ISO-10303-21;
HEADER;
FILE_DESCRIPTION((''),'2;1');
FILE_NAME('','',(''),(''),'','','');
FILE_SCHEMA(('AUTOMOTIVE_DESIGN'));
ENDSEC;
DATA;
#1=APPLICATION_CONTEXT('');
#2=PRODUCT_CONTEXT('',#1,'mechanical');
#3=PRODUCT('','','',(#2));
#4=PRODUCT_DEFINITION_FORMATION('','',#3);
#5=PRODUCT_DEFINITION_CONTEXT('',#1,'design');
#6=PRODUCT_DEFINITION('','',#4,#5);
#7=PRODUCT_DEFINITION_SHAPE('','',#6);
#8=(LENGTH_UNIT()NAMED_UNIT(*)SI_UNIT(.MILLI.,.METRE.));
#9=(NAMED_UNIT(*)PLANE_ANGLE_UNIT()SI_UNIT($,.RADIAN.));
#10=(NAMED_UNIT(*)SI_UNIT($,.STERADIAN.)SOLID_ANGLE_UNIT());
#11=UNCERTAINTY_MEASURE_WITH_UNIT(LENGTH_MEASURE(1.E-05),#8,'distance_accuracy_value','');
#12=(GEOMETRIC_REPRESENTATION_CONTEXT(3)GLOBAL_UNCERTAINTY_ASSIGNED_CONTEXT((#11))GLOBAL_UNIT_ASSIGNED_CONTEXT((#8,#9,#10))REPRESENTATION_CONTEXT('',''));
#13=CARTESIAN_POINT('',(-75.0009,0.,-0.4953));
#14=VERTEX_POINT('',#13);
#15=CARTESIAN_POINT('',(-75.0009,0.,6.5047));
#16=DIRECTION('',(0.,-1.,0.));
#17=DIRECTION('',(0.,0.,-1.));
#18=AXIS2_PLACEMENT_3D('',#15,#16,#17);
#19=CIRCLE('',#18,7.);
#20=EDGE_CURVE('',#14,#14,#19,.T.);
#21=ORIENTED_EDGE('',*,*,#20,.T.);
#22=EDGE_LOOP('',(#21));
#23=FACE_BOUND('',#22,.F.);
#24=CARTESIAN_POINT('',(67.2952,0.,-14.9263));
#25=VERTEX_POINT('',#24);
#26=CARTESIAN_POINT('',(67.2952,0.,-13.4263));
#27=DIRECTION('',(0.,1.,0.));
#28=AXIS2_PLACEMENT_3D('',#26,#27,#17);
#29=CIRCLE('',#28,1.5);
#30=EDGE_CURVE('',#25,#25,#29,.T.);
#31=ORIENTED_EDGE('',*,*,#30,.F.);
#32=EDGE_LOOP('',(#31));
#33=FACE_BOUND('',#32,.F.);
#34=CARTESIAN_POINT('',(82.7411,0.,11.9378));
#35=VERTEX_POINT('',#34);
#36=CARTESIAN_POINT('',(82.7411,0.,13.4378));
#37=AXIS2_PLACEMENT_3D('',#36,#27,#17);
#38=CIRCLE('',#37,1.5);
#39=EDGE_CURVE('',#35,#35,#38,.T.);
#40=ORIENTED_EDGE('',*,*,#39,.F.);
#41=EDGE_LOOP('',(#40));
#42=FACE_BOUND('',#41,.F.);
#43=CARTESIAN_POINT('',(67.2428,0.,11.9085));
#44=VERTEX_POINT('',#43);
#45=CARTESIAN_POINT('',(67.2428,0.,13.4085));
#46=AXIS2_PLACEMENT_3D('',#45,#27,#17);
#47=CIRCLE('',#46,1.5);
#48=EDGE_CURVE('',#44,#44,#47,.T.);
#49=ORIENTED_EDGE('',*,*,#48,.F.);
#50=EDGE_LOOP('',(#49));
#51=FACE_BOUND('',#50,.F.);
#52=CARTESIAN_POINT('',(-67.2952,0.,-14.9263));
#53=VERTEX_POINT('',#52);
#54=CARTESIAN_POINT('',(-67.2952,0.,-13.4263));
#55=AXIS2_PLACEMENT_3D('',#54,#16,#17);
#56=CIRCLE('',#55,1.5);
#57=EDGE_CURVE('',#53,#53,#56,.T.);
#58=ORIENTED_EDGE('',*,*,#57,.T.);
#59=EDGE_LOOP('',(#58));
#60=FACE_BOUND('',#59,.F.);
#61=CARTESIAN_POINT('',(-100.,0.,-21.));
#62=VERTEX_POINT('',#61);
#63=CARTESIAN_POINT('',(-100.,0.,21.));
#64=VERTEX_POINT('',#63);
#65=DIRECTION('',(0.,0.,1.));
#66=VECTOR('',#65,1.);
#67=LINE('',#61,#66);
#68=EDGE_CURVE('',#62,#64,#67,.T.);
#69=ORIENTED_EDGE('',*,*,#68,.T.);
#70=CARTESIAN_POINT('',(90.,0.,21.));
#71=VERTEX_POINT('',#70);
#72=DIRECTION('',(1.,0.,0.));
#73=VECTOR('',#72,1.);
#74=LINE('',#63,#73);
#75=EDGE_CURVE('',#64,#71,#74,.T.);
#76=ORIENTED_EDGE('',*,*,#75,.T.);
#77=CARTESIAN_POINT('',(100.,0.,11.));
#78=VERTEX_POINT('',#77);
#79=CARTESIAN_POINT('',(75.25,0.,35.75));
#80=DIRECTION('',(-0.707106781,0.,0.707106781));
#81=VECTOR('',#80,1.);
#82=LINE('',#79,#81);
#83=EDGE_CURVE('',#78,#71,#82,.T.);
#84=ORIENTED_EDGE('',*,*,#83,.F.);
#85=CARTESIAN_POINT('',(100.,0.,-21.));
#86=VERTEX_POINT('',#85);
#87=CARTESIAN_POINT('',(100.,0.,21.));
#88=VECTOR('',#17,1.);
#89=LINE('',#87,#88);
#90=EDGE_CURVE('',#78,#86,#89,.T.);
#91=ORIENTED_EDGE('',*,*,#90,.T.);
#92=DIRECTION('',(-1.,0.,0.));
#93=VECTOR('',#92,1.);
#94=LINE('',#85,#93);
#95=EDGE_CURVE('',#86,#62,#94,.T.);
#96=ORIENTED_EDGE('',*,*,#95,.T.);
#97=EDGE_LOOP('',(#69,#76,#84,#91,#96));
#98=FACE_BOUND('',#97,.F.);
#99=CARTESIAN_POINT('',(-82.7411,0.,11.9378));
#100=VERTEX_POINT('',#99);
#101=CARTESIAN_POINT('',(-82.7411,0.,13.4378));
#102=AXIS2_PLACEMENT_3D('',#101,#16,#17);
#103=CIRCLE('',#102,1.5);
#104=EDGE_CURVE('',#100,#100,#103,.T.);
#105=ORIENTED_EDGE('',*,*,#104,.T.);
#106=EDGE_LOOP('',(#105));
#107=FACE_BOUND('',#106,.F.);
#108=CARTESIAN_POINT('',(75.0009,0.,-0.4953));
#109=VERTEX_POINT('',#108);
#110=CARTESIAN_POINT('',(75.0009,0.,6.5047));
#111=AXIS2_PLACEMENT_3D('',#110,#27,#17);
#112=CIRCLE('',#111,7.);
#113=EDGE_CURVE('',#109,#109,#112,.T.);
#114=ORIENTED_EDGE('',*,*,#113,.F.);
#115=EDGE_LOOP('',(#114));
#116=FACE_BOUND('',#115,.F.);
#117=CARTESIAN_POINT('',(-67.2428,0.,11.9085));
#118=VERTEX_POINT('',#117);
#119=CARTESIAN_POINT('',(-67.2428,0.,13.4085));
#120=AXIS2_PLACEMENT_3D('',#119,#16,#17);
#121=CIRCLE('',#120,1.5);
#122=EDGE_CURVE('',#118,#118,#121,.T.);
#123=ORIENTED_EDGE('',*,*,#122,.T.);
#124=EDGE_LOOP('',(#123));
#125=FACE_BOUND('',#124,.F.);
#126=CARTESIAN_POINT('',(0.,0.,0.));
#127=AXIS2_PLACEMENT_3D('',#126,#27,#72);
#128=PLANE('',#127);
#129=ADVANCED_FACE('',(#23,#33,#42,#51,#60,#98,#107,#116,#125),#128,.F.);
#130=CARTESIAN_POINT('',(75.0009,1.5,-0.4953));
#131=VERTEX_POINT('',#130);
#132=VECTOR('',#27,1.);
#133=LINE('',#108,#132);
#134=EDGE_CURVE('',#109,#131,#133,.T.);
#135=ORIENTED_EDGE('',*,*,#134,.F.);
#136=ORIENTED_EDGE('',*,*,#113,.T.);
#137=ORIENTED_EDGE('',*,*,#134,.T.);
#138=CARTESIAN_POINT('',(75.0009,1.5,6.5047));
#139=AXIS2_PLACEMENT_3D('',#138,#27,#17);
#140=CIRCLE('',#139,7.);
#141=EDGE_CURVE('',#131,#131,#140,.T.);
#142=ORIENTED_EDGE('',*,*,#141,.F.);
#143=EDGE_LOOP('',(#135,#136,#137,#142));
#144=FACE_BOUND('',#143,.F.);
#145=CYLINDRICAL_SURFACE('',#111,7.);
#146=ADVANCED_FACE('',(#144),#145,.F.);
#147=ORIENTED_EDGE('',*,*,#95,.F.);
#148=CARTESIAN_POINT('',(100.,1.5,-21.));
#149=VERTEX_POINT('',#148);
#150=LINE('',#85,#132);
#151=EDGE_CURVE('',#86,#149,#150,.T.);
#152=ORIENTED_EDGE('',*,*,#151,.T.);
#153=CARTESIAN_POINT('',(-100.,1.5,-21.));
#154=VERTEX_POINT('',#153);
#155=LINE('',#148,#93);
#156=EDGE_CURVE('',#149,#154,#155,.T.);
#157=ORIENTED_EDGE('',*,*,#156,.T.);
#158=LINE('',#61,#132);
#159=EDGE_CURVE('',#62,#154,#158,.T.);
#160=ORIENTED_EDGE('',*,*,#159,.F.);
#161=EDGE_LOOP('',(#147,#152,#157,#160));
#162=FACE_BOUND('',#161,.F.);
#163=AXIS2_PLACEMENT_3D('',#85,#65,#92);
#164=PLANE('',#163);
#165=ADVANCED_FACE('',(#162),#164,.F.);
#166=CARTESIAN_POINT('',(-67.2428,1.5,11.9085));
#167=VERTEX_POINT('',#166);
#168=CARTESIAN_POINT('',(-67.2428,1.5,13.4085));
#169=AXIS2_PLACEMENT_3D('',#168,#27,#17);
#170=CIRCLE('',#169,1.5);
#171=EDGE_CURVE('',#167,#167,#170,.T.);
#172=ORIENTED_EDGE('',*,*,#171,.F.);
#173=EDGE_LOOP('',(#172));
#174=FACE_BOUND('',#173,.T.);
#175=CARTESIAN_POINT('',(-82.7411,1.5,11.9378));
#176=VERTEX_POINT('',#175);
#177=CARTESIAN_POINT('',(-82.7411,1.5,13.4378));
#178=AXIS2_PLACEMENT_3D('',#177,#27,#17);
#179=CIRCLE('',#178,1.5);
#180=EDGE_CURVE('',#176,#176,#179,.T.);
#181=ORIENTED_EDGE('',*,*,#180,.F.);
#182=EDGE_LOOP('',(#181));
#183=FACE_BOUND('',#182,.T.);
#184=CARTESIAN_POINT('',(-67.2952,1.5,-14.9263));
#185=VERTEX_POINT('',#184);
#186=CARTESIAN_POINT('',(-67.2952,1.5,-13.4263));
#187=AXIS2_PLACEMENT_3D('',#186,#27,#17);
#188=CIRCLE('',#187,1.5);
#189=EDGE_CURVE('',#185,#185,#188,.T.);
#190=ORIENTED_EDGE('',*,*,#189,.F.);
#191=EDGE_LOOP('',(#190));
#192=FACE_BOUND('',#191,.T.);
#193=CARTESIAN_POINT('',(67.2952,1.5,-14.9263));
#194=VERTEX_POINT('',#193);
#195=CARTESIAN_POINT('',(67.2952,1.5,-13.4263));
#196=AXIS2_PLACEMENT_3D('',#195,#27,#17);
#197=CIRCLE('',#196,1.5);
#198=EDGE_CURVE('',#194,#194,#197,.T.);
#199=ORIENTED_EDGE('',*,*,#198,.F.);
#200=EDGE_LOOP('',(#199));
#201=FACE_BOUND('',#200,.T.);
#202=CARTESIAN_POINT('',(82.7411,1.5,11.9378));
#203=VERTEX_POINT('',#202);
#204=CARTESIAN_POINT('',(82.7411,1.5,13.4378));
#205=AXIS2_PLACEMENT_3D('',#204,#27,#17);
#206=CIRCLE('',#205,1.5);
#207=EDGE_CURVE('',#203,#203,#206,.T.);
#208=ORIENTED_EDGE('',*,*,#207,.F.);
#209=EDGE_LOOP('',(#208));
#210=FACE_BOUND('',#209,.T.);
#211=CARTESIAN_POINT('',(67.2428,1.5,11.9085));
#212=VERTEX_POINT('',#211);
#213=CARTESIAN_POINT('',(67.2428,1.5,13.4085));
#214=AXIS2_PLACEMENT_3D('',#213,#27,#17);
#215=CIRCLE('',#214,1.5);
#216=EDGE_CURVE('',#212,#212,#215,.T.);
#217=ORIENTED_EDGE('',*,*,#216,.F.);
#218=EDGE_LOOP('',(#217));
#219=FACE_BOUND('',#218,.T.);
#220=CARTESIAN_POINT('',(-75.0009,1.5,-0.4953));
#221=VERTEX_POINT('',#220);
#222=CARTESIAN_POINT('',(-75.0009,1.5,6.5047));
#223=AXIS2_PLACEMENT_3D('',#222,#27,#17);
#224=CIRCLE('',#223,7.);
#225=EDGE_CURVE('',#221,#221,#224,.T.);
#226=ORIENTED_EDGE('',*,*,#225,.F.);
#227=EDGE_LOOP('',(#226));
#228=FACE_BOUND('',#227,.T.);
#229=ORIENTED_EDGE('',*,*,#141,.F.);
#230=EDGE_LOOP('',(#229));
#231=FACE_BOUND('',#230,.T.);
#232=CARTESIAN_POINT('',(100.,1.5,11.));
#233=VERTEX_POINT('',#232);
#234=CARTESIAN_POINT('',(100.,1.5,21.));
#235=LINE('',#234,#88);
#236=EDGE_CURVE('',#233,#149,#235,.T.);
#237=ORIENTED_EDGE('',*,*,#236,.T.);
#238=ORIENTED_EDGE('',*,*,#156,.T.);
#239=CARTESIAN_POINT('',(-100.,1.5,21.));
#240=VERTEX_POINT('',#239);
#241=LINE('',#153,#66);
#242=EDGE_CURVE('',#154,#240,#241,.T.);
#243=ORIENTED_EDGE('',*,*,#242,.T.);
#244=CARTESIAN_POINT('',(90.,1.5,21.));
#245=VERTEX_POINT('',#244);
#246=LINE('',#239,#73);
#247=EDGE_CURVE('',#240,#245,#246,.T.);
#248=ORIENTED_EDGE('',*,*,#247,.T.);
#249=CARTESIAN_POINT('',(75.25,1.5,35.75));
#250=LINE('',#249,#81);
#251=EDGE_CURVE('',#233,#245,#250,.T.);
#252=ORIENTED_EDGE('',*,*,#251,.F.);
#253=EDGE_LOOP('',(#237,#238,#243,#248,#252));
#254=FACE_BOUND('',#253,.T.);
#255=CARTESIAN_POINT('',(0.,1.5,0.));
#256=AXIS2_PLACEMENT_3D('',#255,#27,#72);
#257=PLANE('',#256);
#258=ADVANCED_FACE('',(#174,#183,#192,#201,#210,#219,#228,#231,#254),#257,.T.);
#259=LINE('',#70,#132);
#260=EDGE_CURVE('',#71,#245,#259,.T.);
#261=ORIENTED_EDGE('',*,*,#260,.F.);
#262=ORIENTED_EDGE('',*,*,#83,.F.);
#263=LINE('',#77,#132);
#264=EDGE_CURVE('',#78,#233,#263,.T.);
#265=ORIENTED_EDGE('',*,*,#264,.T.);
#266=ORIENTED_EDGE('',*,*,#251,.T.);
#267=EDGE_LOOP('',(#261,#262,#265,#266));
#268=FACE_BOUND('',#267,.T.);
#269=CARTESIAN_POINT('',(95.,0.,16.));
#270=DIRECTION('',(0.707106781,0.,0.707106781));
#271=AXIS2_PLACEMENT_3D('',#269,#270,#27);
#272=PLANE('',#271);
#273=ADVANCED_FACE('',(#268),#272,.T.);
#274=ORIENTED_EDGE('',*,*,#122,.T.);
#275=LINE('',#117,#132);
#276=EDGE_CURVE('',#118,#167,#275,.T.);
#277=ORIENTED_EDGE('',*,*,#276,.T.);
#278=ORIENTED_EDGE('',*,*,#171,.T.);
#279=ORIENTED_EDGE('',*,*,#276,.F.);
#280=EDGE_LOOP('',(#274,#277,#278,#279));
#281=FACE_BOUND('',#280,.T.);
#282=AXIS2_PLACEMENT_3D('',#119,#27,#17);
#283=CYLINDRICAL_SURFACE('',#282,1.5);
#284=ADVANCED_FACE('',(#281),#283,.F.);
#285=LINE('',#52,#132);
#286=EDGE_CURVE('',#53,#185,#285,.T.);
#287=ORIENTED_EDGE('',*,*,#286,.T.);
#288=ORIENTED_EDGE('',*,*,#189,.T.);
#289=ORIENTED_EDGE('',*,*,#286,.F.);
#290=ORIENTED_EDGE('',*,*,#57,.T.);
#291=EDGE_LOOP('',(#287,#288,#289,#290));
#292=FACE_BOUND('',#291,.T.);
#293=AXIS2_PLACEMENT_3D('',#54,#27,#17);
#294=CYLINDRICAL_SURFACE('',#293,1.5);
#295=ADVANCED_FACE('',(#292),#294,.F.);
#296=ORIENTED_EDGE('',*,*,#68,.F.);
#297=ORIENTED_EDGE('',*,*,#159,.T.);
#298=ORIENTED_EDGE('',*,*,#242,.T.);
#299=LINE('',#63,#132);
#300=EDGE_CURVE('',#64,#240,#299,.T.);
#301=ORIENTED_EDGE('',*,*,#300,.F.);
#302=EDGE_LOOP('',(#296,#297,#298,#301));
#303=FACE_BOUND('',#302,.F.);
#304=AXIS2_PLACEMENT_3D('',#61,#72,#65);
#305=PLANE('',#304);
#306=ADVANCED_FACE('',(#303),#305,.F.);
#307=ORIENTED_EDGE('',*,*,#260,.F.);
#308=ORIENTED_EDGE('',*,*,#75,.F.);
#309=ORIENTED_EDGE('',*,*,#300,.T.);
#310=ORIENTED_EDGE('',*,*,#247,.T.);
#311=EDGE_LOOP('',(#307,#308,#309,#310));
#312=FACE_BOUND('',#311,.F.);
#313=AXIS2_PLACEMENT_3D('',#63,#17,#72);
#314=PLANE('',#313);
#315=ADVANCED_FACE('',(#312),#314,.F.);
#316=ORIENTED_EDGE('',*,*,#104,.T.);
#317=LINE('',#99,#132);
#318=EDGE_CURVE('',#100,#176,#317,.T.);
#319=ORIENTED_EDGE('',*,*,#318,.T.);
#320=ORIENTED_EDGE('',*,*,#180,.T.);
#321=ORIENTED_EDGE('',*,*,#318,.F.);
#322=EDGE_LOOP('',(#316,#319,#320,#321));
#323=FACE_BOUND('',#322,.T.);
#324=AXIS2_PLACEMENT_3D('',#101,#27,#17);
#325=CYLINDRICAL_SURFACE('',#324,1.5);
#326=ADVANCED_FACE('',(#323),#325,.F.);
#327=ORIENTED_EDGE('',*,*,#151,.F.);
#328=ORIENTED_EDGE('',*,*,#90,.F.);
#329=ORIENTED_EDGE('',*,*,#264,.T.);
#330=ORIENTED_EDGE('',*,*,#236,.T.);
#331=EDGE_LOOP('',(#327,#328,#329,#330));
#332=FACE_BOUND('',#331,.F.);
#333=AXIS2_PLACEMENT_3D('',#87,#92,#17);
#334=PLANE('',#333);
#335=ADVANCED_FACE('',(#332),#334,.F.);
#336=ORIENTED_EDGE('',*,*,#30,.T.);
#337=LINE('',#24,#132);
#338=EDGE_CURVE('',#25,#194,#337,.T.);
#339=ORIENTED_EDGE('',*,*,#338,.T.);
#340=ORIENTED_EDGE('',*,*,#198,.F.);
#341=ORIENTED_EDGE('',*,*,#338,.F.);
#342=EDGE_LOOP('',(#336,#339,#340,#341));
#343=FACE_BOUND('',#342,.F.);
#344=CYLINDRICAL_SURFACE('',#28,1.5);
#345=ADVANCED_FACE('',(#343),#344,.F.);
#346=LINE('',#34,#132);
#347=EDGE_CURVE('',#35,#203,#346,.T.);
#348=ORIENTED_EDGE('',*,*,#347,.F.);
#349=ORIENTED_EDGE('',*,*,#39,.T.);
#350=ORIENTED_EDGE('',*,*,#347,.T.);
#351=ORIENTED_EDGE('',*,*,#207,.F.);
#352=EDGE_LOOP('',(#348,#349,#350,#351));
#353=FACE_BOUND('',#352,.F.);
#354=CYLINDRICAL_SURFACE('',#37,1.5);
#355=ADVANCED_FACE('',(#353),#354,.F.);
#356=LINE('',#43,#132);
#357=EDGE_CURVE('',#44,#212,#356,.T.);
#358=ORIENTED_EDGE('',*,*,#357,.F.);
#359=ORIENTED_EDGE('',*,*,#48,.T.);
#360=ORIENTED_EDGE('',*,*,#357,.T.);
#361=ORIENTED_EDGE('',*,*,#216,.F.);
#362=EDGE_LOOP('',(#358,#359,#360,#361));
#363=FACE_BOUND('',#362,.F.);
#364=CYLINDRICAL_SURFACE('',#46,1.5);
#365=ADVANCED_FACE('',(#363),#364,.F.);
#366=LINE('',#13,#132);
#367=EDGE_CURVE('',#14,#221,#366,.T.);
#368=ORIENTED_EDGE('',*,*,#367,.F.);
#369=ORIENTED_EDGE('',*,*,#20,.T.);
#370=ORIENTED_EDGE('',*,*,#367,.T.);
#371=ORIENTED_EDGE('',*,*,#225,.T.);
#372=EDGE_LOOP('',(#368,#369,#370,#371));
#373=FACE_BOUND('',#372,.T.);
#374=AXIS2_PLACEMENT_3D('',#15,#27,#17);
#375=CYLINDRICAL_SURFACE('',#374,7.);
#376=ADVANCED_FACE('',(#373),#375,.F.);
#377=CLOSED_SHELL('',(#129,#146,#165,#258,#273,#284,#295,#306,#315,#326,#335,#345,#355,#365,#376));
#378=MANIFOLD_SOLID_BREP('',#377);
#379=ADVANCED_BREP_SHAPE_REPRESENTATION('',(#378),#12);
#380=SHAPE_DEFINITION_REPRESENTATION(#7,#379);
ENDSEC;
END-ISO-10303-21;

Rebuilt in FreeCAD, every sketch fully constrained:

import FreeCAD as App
import Part
import Sketcher

V = App.Vector


def edges_at(feature, points):
    """Names of the edges that pass closest to the given points."""
    edges = feature.Shape.Edges
    near = lambda p: min(range(len(edges)), key=lambda i: edges[i].distToShape(Part.Vertex(*p))[0])
    return sorted({f"Edge{near(p) + 1}" for p in points})

doc = App.newDocument("Part")
body = doc.addObject("PartDesign::Body", "Body")

sketch1 = doc.addObject("Sketcher::SketchObject", "Sketch")
body.addObject(sketch1)
sketch1.AttachmentSupport = (doc.XZ_Plane, [""])
sketch1.MapMode = "FlatFace"
sketch1.addGeometry(Part.LineSegment(V(100, 21, 0), V(100, -21, 0)), False)
sketch1.addGeometry(Part.LineSegment(V(100, -21, 0), V(-100, -21, 0)), False)
sketch1.addGeometry(Part.LineSegment(V(-100, -21, 0), V(-100, 21, 0)), False)
sketch1.addGeometry(Part.LineSegment(V(-100, 21, 0), V(100, 21, 0)), False)
sketch1.addConstraint(Sketcher.Constraint("Coincident", 0, 2, 1, 1))
sketch1.addConstraint(Sketcher.Constraint("Coincident", 1, 2, 2, 1))
sketch1.addConstraint(Sketcher.Constraint("Coincident", 2, 2, 3, 1))
sketch1.addConstraint(Sketcher.Constraint("Coincident", 3, 2, 0, 1))
sketch1.addConstraint(Sketcher.Constraint("Vertical", 0))
sketch1.addConstraint(Sketcher.Constraint("Horizontal", 1))
sketch1.addConstraint(Sketcher.Constraint("Vertical", 2))
sketch1.addConstraint(Sketcher.Constraint("Horizontal", 3))
sketch1.addConstraint(Sketcher.Constraint("Symmetric", 0, 2, 2, 2, -1, 1))
sketch1.addConstraint(Sketcher.Constraint("DistanceX", 1, 2, 1, 1, 200.0))
sketch1.addConstraint(Sketcher.Constraint("DistanceY", 0, 2, 0, 1, 42.0))
pad1 = doc.addObject("PartDesign::Pad", "Pad")
body.addObject(pad1)
pad1.Profile = sketch1
pad1.Length = 1.5
pad1.Reversed = True

sketch2 = doc.addObject("Sketcher::SketchObject", "Sketch001")
body.addObject(sketch2)
sketch2.AttachmentSupport = (doc.XZ_Plane, [""])
sketch2.MapMode = "FlatFace"
sketch2.addGeometry(Part.Circle(V(67.2, 13.4, 0), V(0, 0, 1), 1.5), False)
sketch2.addConstraint(Sketcher.Constraint("Diameter", 0, 3.0))
sketch2.addConstraint(Sketcher.Constraint("DistanceX", -1, 1, 0, 3, 67.2428))
sketch2.addConstraint(Sketcher.Constraint("DistanceY", -1, 1, 0, 3, 13.4085))
doc.recompute()
hole = doc.addObject("PartDesign::Hole", "Hole")
body.addObject(hole)
hole.Profile = sketch2
hole.ThreadType = "None"
hole.Diameter = 3
hole.DepthType = "Dimension"
hole.Depth = 7
hole.DrillPoint = "Angled"
hole.DrillPointAngle = 118

sketch3 = doc.addObject("Sketcher::SketchObject", "Sketch002")
body.addObject(sketch3)
sketch3.AttachmentSupport = (doc.XZ_Plane, [""])
sketch3.MapMode = "FlatFace"
sketch3.addGeometry(Part.Circle(V(75, 7, 0), V(0, 0, 1), 7), False)
sketch3.addConstraint(Sketcher.Constraint("Diameter", 0, 14.0))
sketch3.addConstraint(Sketcher.Constraint("DistanceX", -1, 1, 0, 3, 75.001))
sketch3.addConstraint(Sketcher.Constraint("DistanceY", -1, 1, 0, 3, 6.5047))
doc.recompute()
hole2 = doc.addObject("PartDesign::Hole", "Hole001")
body.addObject(hole2)
hole2.Profile = sketch3
hole2.ThreadType = "None"
hole2.Diameter = 14
hole2.DepthType = "Dimension"
hole2.Depth = 15
hole2.DrillPoint = "Angled"
hole2.DrillPointAngle = 118

sketch4 = doc.addObject("Sketcher::SketchObject", "Sketch003")
body.addObject(sketch4)
sketch4.AttachmentSupport = (doc.XZ_Plane, [""])
sketch4.MapMode = "FlatFace"
sketch4.addGeometry(Part.Circle(V(82.7, 13.4, 0), V(0, 0, 1), 1.5), False)
sketch4.addConstraint(Sketcher.Constraint("Diameter", 0, 3.0))
sketch4.addConstraint(Sketcher.Constraint("DistanceX", -1, 1, 0, 3, 82.741))
sketch4.addConstraint(Sketcher.Constraint("DistanceY", -1, 1, 0, 3, 13.4378))
doc.recompute()
hole3 = doc.addObject("PartDesign::Hole", "Hole002")
body.addObject(hole3)
hole3.Profile = sketch4
hole3.ThreadType = "None"
hole3.Diameter = 3
hole3.DepthType = "Dimension"
hole3.Depth = 5
hole3.DrillPoint = "Angled"
hole3.DrillPointAngle = 118

sketch5 = doc.addObject("Sketcher::SketchObject", "Sketch004")
body.addObject(sketch5)
sketch5.AttachmentSupport = (doc.XZ_Plane, [""])
sketch5.MapMode = "FlatFace"
sketch5.addGeometry(Part.Circle(V(67.3, -13.4, 0), V(0, 0, 1), 1.5), False)
sketch5.addConstraint(Sketcher.Constraint("Diameter", 0, 3.0))
sketch5.addConstraint(Sketcher.Constraint("DistanceX", -1, 1, 0, 3, 67.2952))
sketch5.addConstraint(Sketcher.Constraint("DistanceY", 0, 3, -1, 1, 13.4263))
doc.recompute()
hole4 = doc.addObject("PartDesign::Hole", "Hole003")
body.addObject(hole4)
hole4.Profile = sketch5
hole4.ThreadType = "None"
hole4.Diameter = 3
hole4.DepthType = "Dimension"
hole4.Depth = 6
hole4.DrillPoint = "Angled"
hole4.DrillPointAngle = 118
doc.recompute()

mirrored = doc.addObject("PartDesign::Mirrored", "Mirrored")
body.addObject(mirrored)
mirrored.Originals = [hole, hole3, hole4, hole2]
mirrored.MirrorPlane = (doc.YZ_Plane, [""])
body.Tip = mirrored
doc.recompute()

chamfer = doc.addObject("PartDesign::Chamfer", "Chamfer")
body.addObject(chamfer)
chamfer.Base = (mirrored, edges_at(mirrored, [(100, 0.75, 21)]))
chamfer.Size = 10

doc.recompute()
